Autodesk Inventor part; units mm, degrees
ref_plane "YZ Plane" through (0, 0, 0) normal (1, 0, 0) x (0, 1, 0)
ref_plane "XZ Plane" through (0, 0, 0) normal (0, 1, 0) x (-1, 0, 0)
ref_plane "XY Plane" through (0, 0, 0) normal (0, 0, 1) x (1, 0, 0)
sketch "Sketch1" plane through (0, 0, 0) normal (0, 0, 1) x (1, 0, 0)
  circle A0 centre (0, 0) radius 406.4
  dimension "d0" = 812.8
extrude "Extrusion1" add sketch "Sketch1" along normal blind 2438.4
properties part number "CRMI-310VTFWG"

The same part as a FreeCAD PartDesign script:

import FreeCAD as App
import Part
import Sketcher
from FreeCAD import Vector
Q = App.Units.Quantity

doc = App.newDocument("Part")
body = doc.addObject("PartDesign::Body", "Body")

# Sketch on XY plane
sketch1 = body.newObject("Sketcher::SketchObject", "Sketch")
sketch1.AttachmentSupport = (doc.getObject("XY_Plane"), [""])
sketch1.MapMode = "FlatFace"
sketch1.addGeometry(Part.Circle(Vector(0, 0, 0), Vector(0, 0, 1), 406), False)
sketch1.addConstraint(Sketcher.Constraint("Coincident", 0, 3, -1, 1))
sketch1.addConstraint(Sketcher.Constraint("Diameter", 0, Q("32 in")))
pad1 = body.newObject("PartDesign::Pad", "Pad")
pad1.Profile = sketch1
pad1.Length = Q("96 in")

doc.recompute()
